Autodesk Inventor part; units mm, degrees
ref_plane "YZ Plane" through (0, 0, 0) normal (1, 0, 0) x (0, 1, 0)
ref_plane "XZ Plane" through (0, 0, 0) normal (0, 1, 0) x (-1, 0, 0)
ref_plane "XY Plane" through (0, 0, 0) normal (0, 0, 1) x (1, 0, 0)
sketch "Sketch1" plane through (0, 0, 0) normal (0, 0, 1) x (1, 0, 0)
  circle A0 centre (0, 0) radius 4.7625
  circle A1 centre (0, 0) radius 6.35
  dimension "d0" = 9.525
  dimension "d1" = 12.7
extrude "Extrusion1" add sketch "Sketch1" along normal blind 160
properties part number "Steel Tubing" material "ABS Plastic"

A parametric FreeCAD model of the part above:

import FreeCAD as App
import Part
import Sketcher

V = App.Vector
Q = App.Units.Quantity

doc = App.newDocument("Part")
body = doc.addObject("PartDesign::Body", "Body")

sketch1 = doc.addObject("Sketcher::SketchObject", "Sketch")
body.addObject(sketch1)
sketch1.AttachmentSupport = (doc.XY_Plane, [""])
sketch1.MapMode = "FlatFace"
sketch1.addGeometry(Part.Circle(V(0, 0, 0), V(0, 0, 1), 6.3), False)
sketch1.addGeometry(Part.Circle(V(0, 0, 0), V(0, 0, 1), 4.8), False)
sketch1.addConstraint(Sketcher.Constraint("Coincident", 0, 3, -1, 1))
sketch1.addConstraint(Sketcher.Constraint("Coincident", 1, 3, -1, 1))
sketch1.addConstraint(Sketcher.Constraint("Diameter", 0, Q("0.5 in")))
sketch1.addConstraint(Sketcher.Constraint("Diameter", 1, Q("0.375 in")))
pad1 = doc.addObject("PartDesign::Pad", "Pad")
body.addObject(pad1)
pad1.Profile = sketch1
pad1.Length = 160

doc.recompute()
